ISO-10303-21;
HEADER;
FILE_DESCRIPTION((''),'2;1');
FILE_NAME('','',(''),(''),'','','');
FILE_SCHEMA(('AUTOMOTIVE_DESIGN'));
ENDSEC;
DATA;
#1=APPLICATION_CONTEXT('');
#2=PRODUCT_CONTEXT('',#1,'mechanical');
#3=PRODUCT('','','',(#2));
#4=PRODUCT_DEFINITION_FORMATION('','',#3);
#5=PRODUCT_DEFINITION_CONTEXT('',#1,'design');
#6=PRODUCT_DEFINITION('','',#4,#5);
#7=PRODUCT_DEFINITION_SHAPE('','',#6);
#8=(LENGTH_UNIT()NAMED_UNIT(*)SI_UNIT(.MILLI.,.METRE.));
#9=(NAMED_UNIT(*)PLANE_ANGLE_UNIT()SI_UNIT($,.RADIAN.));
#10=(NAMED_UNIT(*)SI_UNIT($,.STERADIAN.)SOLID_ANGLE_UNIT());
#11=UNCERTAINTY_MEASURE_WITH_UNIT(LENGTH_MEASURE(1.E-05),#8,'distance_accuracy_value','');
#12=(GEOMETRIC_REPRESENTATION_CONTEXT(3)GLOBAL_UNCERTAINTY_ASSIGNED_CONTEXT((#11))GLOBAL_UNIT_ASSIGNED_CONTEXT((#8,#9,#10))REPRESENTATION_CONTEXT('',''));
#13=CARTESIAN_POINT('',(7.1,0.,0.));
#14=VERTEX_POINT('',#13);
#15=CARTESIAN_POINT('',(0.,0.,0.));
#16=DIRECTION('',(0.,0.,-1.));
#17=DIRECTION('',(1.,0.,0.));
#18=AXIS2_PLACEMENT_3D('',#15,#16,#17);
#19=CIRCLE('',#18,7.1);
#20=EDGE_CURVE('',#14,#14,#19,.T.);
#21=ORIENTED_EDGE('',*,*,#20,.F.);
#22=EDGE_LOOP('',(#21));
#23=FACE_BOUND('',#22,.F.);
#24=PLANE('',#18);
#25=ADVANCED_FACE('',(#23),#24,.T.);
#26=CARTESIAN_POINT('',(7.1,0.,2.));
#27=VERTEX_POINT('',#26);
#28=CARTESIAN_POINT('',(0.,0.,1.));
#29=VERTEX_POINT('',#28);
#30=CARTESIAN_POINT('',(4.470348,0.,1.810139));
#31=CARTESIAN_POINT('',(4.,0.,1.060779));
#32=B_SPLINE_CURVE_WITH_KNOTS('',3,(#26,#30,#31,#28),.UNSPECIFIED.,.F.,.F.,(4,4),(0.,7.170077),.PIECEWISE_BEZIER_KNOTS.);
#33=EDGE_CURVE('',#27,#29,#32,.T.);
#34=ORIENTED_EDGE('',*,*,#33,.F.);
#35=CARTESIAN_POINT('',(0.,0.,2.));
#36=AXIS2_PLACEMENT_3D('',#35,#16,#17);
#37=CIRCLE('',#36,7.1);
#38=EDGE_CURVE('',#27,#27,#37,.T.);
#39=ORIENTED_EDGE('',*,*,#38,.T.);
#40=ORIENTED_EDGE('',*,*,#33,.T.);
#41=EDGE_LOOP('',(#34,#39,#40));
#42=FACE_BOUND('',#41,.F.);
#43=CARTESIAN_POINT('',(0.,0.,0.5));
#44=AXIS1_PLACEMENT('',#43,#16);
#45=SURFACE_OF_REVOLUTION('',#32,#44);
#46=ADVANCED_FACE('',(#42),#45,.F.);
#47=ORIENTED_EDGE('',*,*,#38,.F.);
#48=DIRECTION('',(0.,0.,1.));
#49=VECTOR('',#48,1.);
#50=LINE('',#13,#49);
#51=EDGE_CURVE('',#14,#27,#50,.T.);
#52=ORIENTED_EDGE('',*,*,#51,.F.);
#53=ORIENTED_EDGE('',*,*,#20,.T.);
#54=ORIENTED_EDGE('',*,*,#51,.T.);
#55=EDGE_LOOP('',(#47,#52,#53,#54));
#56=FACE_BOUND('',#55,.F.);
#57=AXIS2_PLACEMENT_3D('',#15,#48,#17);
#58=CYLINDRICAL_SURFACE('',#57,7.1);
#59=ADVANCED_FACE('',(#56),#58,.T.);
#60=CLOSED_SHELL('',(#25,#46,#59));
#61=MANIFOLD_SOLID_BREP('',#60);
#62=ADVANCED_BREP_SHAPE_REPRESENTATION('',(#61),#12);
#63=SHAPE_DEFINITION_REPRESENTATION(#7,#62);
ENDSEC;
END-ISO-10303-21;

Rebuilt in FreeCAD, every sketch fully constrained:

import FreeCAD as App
import Part
import Sketcher
from FreeCAD import Vector

doc = App.newDocument("Part")
body = doc.addObject("PartDesign::Body", "Body")

# Sketch on XZ plane
sketch1 = body.newObject("Sketcher::SketchObject", "Sketch")
sketch1.AttachmentSupport = (doc.getObject("XZ_Plane"), [""])
sketch1.MapMode = "FlatFace"
sketch1.addGeometry(Part.LineSegment(Vector(0, 1, 0), Vector(0, 0, 0)), False)
sketch1.addGeometry(Part.LineSegment(Vector(0, 0, 0), Vector(7.1, 0, 0)), False)
sketch1.addGeometry(Part.LineSegment(Vector(7.1, 0, 0), Vector(7.1, 2, 0)), False)
sketch1.addGeometry(Part.BSplineCurve([Vector(7.1, 2, 0), Vector(4.470348, 1.810139, 0), Vector(4, 1.060779, 0), Vector(0, 1, 0)], [4, 4], [0, 7.170077], False, 3, [1, 1, 1, 1], False), False)
sketch1.addConstraint(Sketcher.Constraint("Block", 3))
sketch1.addConstraint(Sketcher.Constraint("Coincident", 0, 2, 1, 1))
sketch1.addConstraint(Sketcher.Constraint("Coincident", 1, 2, 2, 1))
sketch1.addConstraint(Sketcher.Constraint("Coincident", 2, 2, 3, 1))
sketch1.addConstraint(Sketcher.Constraint("Coincident", 3, 2, 0, 1))
sketch1.addConstraint(Sketcher.Constraint("Vertical", 0))
sketch1.addConstraint(Sketcher.Constraint("Horizontal", 1))
sketch1.addConstraint(Sketcher.Constraint("Vertical", 2))
sketch1.addConstraint(Sketcher.Constraint("PointOnObject", 1, 2, -1))
revolution = body.newObject("PartDesign::Revolution", "Revolution")
revolution.Profile = sketch1
revolution.ReferenceAxis = (sketch1, ["V_Axis"])
revolution.Angle = 360

doc.recompute()
